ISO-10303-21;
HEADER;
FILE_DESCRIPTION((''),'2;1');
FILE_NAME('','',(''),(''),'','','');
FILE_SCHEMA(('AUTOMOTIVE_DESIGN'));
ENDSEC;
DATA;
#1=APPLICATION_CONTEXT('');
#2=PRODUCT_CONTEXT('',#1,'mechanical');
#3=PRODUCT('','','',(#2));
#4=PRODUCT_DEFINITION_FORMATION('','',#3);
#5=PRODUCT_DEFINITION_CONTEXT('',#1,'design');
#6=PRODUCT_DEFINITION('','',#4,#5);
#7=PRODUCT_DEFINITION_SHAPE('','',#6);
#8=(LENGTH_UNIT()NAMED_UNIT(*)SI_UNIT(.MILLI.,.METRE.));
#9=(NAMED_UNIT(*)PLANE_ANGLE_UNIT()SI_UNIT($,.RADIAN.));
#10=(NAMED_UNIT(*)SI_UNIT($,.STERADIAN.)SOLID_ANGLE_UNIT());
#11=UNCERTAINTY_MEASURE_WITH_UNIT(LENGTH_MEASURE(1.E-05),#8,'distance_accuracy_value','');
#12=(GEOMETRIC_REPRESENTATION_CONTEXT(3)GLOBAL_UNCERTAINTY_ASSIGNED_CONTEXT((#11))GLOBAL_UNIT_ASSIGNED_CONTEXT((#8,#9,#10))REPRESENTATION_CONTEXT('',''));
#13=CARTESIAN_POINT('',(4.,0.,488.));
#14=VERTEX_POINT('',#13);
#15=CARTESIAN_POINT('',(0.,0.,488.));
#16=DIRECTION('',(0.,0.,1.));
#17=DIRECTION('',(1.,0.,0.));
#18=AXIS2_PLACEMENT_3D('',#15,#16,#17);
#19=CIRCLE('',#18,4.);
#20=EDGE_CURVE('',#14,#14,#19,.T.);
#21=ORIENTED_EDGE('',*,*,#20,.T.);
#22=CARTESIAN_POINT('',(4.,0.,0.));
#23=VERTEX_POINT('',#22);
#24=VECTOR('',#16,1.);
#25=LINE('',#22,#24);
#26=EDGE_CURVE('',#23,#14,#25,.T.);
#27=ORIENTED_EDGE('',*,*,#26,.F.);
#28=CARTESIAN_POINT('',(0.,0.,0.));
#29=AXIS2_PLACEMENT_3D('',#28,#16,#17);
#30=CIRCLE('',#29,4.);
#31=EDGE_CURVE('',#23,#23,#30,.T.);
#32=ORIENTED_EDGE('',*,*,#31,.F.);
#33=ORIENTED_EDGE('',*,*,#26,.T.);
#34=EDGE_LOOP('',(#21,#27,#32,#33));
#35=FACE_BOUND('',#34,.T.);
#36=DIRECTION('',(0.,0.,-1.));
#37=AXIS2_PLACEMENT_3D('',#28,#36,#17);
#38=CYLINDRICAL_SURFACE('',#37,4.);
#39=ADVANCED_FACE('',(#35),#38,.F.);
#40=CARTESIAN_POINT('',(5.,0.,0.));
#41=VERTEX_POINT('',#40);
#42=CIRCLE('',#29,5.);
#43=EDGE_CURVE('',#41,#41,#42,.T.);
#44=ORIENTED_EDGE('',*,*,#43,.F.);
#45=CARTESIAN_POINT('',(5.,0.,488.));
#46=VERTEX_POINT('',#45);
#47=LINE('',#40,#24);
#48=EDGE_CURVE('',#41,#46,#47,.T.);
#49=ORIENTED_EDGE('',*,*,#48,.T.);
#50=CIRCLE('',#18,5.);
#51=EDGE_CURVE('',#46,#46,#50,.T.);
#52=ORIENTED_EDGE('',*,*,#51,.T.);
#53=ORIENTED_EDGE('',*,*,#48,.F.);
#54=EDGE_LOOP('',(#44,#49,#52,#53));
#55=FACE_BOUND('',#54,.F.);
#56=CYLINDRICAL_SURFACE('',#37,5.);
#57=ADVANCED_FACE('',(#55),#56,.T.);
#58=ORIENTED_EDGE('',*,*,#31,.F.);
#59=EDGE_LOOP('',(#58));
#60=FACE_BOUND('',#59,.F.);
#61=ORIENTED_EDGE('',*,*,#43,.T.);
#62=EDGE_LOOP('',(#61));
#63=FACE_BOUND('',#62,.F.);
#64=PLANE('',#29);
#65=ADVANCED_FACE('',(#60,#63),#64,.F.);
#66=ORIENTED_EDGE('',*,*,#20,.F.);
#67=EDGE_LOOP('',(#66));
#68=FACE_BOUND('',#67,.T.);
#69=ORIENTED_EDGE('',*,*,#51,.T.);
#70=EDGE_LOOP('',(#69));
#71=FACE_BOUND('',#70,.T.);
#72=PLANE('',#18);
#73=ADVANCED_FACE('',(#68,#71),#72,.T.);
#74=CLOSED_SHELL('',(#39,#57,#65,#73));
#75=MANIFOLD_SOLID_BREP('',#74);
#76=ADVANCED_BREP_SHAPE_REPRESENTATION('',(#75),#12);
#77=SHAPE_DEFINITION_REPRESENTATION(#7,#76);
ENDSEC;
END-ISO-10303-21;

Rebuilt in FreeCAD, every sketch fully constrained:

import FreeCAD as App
import Part
import Sketcher

V = App.Vector
Q = App.Units.Quantity

doc = App.newDocument("Part")
body = doc.addObject("PartDesign::Body", "Body")

# Sketch on XY plane
sketch1 = body.newObject("Sketcher::SketchObject", "Sketch")
sketch1.AttachmentSupport = (doc.getObject("XY_Plane"), [""])
sketch1.MapMode = "FlatFace"
sketch1.addGeometry([
    Part.Circle(V(0, 0, 0), V(0, 0, 1), 5),
    Part.Circle(V(0, 0, 0), V(0, 0, 1), 4),
], False)
sketch1.addConstraint([
    Sketcher.Constraint("Coincident", 0, 3, -1, 1),
    Sketcher.Constraint("Coincident", 1, 3, -1, 1),
    Sketcher.Constraint("Diameter", 0, Q("10 mm")),
    Sketcher.Constraint("Diameter", 1, Q("8 mm")),
])
pad1 = body.newObject("PartDesign::Pad", "Pad")
pad1.Profile = sketch1
pad1.Length = 488

doc.recompute()
